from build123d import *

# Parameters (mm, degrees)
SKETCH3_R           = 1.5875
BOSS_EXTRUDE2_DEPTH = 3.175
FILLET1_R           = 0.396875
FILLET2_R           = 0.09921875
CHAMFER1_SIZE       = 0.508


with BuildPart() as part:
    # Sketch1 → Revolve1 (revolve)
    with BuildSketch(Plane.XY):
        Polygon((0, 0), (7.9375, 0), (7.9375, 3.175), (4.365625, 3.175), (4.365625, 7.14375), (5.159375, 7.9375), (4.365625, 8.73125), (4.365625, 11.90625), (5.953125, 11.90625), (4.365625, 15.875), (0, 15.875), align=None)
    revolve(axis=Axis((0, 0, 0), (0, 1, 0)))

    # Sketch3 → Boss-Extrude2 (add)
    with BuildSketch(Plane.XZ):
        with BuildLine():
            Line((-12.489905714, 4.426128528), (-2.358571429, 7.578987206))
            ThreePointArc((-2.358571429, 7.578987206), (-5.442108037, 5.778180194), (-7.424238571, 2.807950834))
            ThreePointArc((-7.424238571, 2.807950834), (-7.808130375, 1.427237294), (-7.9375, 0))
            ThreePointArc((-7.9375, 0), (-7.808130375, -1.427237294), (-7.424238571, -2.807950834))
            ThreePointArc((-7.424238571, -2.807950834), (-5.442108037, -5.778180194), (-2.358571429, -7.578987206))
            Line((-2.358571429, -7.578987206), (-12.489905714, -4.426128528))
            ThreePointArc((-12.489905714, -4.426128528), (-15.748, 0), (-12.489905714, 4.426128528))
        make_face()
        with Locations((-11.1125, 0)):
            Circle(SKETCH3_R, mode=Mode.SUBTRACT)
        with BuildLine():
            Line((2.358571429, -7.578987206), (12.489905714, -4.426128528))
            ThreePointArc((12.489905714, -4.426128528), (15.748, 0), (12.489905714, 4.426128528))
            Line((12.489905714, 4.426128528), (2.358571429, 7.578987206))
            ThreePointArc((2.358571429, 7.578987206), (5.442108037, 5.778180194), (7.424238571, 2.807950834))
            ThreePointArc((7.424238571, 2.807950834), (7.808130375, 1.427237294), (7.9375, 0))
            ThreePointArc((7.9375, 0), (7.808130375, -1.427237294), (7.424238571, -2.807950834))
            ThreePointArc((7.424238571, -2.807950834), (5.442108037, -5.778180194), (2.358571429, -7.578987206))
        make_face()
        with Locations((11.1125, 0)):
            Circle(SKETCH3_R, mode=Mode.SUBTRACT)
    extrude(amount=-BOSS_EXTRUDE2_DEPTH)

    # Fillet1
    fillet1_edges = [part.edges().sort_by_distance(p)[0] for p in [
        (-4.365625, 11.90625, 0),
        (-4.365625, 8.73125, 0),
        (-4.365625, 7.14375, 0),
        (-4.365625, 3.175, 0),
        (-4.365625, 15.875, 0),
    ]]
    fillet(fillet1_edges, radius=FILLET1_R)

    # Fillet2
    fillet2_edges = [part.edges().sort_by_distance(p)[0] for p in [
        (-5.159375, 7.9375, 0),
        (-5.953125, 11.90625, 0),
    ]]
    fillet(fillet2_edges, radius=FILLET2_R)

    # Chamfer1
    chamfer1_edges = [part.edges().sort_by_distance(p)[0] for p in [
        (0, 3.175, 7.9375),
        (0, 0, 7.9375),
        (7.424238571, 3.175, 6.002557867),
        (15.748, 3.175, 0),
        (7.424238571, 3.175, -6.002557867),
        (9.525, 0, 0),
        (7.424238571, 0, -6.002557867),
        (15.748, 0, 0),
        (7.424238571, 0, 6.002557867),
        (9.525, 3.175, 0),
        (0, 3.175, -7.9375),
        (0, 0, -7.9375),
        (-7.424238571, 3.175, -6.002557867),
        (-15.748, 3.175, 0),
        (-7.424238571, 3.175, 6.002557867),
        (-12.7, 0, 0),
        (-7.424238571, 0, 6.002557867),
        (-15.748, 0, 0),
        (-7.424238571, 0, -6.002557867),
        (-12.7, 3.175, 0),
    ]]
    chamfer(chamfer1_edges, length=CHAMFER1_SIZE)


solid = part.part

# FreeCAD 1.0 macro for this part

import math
import FreeCAD as App
import Part
import Sketcher

V = App.Vector
Q = App.Units.Quantity


def edges_at(feature, points):
    """Names of the edges that pass closest to the given points."""
    edges = feature.Shape.Edges
    near = lambda p: min(range(len(edges)), key=lambda i: edges[i].distToShape(Part.Vertex(*p))[0])
    return sorted({f"Edge{near(p) + 1}" for p in points})


def add_polygon(sketch, points):
    """Adds a closed chain of lines whose ends are joined by coincident constraints."""
    first, n = sketch.GeometryCount, len(points)
    for a, b in zip(points, points[1:] + points[:1]):
        sketch.addGeometry(Part.LineSegment(App.Vector(*a, 0), App.Vector(*b, 0)), False)
    for i in range(n):
        sketch.addConstraint(Sketcher.Constraint("Coincident", first + i, 2, first + (i + 1) % n, 1))

doc = App.newDocument("Part")
body = doc.addObject("PartDesign::Body", "Body")

# Sketch on XY plane
sketch1 = body.newObject("Sketcher::SketchObject", "Sketch")
sketch1.AttachmentSupport = (doc.getObject("XY_Plane"), [""])
sketch1.MapMode = "FlatFace"
add_polygon(sketch1, [(0, 0), (7.9, 0), (7.9, 3.2), (4.4, 3.2), (4.4, 7.1), (5.2, 7.9), (4.4, 8.7), (4.4, 11.9), (6, 11.9), (4.4, 15.9), (0, 15.9)])  # lines 0-10
sketch1.addConstraint([
    Sketcher.Constraint("Horizontal", 0),
    Sketcher.Constraint("Vertical", 1),
    Sketcher.Constraint("Horizontal", 2),
    Sketcher.Constraint("Vertical", 3),
    Sketcher.Constraint("Vertical", 6),
    Sketcher.Constraint("Horizontal", 7),
    Sketcher.Constraint("Horizontal", 9),
    Sketcher.Constraint("Vertical", 10),
    Sketcher.Constraint("Coincident", 10, 2, -1, 1),
    Sketcher.Constraint("Perpendicular", 4, 5),
    Sketcher.Constraint("Vertical", 3, 2, 5, 2),
    Sketcher.Constraint("Vertical", 6, 2, 8, 2),
    Sketcher.Constraint("Equal", 1, 6),
    Sketcher.Constraint("Equal", 4, 5),
    Sketcher.Constraint("DistanceX", 0, 1, 0, 2, Q("0.3125 in")),
    Sketcher.Constraint("DistanceX", 2, 2, 2, 1, Q("0.140625 in")),
    Sketcher.Constraint("DistanceX", 7, 1, 7, 2, Q("0.0625 in")),
    Sketcher.Constraint("DistanceY", 1, 1, 1, 2, Q("0.125 in")),
    Sketcher.Constraint("DistanceY", 3, 1, 3, 2, Q("0.15625 in")),
    Sketcher.Constraint("DistanceY", 10, 2, 10, 1, Q("0.625 in")),
    Sketcher.Constraint("DistanceX", -1, 1, 4, 2, Q("0.203125 in")),
])
revolution = body.newObject("PartDesign::Revolution", "Revolution")
revolution.Profile = sketch1
revolution.ReferenceAxis = (sketch1, ["V_Axis"])
revolution.Angle = 360

# Sketch on XZ plane
sketch2 = body.newObject("Sketcher::SketchObject", "Sketch001")
sketch2.AttachmentSupport = (doc.getObject("XZ_Plane"), [""])
sketch2.MapMode = "FlatFace"
sketch2.addGeometry([
    Part.LineSegment(V(-2.4, 7.6, 0), V(-12.5, 4.4, 0)),  # 0
    Part.ArcOfCircle(Part.Circle(V(-11.1, 0, 0), V(0, 0, 1), 4.6), math.radians(107), math.radians(253)),  # 1
    Part.LineSegment(V(-12.5, -4.4, 0), V(-2.4, -7.6, 0)),  # 2
    Part.ArcOfCircle(Part.Circle(V(0, 0, 0), V(0, 0, 1), 7.9), math.radians(-159), math.radians(-107)),  # 3
    Part.ArcOfCircle(Part.Circle(V(0, 0, 0), V(0, 0, 1), 7.9), math.radians(-180), math.radians(-159)),  # 4
    Part.ArcOfCircle(Part.Circle(V(0, 0, 0), V(0, 0, 1), 7.9), math.radians(159), math.radians(180)),  # 5
    Part.ArcOfCircle(Part.Circle(V(0, 0, 0), V(0, 0, 1), 7.9), math.radians(107), math.radians(159)),  # 6
    Part.Circle(V(-11.1, 0, 0), V(0, 0, 1), 1.6),  # 7
    Part.LineSegment(V(2.4, -7.6, 0), V(12.5, -4.4, 0)),  # 8
    Part.ArcOfCircle(Part.Circle(V(11.1, 0, 0), V(0, 0, 1), 4.6), math.radians(-73), math.radians(73)),  # 9
    Part.LineSegment(V(12.5, 4.4, 0), V(2.4, 7.6, 0)),  # 10
    Part.ArcOfCircle(Part.Circle(V(0, 0, 0), V(0, 0, 1), 7.9), math.radians(21), math.radians(73)),  # 11
    Part.ArcOfCircle(Part.Circle(V(0, 0, 0), V(0, 0, 1), 7.9), math.radians(0), math.radians(21)),  # 12
    Part.ArcOfCircle(Part.Circle(V(0, 0, 0), V(0, 0, 1), 7.9), math.radians(-21), math.radians(0)),  # 13
    Part.ArcOfCircle(Part.Circle(V(0, 0, 0), V(0, 0, 1), 7.9), math.radians(-73), math.radians(-21)),  # 14
    Part.Circle(V(11.1, 0, 0), V(0, 0, 1), 1.6),  # 15
], False)
sketch2.addConstraint([
    Sketcher.Constraint("Tangent", 0, 2, 1, 1),
    Sketcher.Constraint("Tangent", 1, 2, 2, 1),
    Sketcher.Constraint("Tangent", 2, 2, 3, 2),
    Sketcher.Constraint("Tangent", 3, 1, 4, 2),
    Sketcher.Constraint("Tangent", 4, 1, 5, 2),
    Sketcher.Constraint("Tangent", 5, 1, 6, 2),
    Sketcher.Constraint("Tangent", 6, 1, 0, 1),
    Sketcher.Constraint("Tangent", 8, 2, 9, 1),
    Sketcher.Constraint("Tangent", 9, 2, 10, 1),
    Sketcher.Constraint("Tangent", 10, 2, 11, 2),
    Sketcher.Constraint("Tangent", 11, 1, 12, 2),
    Sketcher.Constraint("Tangent", 12, 1, 13, 2),
    Sketcher.Constraint("Tangent", 13, 1, 14, 2),
    Sketcher.Constraint("Tangent", 14, 1, 8, 1),
    Sketcher.Constraint("Coincident", 3, 3, -1, 1),
    Sketcher.Constraint("Coincident", 5, 3, -1, 1),
    Sketcher.Constraint("Coincident", 11, 3, -1, 1),
    Sketcher.Constraint("Coincident", 13, 3, -1, 1),
    Sketcher.Constraint("Coincident", 7, 3, 1, 3),
    Sketcher.Constraint("Coincident", 15, 3, 9, 3),
    Sketcher.Constraint("Equal", 5, 6),
    Sketcher.Constraint("Equal", 1, 9),
    Sketcher.Constraint("Equal", 6, 11),
    Sketcher.Constraint("Equal", 13, 14),
    Sketcher.Constraint("Equal", 7, 15),
    Sketcher.Constraint("Symmetric", 1, 3, 9, 3, -1, 1),
    Sketcher.Constraint("PointOnObject", 1, 3, -1),
    Sketcher.Constraint("PointOnObject", 4, 1, -1),
    Sketcher.Constraint("PointOnObject", 12, 1, -1),
    Sketcher.Constraint("Horizontal", 5, 1, 11, 1),
    Sketcher.Constraint("Horizontal", 3, 1, 13, 1),
    Sketcher.Constraint("Vertical", 3, 1, 5, 1),
    Sketcher.Constraint("Diameter", 7, Q("0.125 in")),
    Sketcher.Constraint("Radius", 3, Q("0.3125 in")),
    Sketcher.Constraint("Radius", 1, Q("0.1825 in")),
    Sketcher.Constraint("DistanceX", 1, 3, -1, 1, Q("0.4375 in")),
    Sketcher.Constraint("DistanceY", 3, 1, 5, 1, 5.615902),
])
pad1 = body.newObject("PartDesign::Pad", "Pad")
pad1.Profile = sketch2
pad1.Length = Q("0.125 in")
pad1.Reversed = True
doc.recompute()

fillet = body.newObject("PartDesign::Fillet", "Fillet")
fillet.Base = (pad1, edges_at(pad1, [
    (-4.366, 11.906, 0),
    (-4.366, 8.731, 0),
    (-4.366, 7.144, 0),
    (-4.366, 3.175, 0),
    (-4.366, 15.875, 0),
]))
fillet.Radius = Q("0.015625 in")
doc.recompute()

fillet2 = body.newObject("PartDesign::Fillet", "Fillet001")
fillet2.Base = (fillet, edges_at(fillet, [(-5.159, 7.938, 0), (-5.953, 11.906, 0)]))
fillet2.Radius = 0.099219
doc.recompute()

chamfer = body.newObject("PartDesign::Chamfer", "Chamfer")
chamfer.Base = (fillet2, edges_at(fillet2, [
    (0, 3.175, 7.938),
    (0, 0, 7.938),
    (7.424, 3.175, 6.003),
    (15.748, 3.175, 0),
    (7.424, 3.175, -6.003),
    (9.525, 0, 0),
    (7.424, 0, -6.003),
    (15.748, 0, 0),
    (7.424, 0, 6.003),
    (9.525, 3.175, 0),
    (0, 3.175, -7.938),
    (0, 0, -7.938),
    (-7.424, 3.175, -6.003),
    (-15.748, 3.175, 0),
    (-7.424, 3.175, 6.003),
    (-12.7, 0, 0),
    (-7.424, 0, 6.003),
    (-15.748, 0, 0),
    (-7.424, 0, -6.003),
    (-12.7, 3.175, 0),
]))
chamfer.Size = Q("0.02 in")

doc.recompute()
